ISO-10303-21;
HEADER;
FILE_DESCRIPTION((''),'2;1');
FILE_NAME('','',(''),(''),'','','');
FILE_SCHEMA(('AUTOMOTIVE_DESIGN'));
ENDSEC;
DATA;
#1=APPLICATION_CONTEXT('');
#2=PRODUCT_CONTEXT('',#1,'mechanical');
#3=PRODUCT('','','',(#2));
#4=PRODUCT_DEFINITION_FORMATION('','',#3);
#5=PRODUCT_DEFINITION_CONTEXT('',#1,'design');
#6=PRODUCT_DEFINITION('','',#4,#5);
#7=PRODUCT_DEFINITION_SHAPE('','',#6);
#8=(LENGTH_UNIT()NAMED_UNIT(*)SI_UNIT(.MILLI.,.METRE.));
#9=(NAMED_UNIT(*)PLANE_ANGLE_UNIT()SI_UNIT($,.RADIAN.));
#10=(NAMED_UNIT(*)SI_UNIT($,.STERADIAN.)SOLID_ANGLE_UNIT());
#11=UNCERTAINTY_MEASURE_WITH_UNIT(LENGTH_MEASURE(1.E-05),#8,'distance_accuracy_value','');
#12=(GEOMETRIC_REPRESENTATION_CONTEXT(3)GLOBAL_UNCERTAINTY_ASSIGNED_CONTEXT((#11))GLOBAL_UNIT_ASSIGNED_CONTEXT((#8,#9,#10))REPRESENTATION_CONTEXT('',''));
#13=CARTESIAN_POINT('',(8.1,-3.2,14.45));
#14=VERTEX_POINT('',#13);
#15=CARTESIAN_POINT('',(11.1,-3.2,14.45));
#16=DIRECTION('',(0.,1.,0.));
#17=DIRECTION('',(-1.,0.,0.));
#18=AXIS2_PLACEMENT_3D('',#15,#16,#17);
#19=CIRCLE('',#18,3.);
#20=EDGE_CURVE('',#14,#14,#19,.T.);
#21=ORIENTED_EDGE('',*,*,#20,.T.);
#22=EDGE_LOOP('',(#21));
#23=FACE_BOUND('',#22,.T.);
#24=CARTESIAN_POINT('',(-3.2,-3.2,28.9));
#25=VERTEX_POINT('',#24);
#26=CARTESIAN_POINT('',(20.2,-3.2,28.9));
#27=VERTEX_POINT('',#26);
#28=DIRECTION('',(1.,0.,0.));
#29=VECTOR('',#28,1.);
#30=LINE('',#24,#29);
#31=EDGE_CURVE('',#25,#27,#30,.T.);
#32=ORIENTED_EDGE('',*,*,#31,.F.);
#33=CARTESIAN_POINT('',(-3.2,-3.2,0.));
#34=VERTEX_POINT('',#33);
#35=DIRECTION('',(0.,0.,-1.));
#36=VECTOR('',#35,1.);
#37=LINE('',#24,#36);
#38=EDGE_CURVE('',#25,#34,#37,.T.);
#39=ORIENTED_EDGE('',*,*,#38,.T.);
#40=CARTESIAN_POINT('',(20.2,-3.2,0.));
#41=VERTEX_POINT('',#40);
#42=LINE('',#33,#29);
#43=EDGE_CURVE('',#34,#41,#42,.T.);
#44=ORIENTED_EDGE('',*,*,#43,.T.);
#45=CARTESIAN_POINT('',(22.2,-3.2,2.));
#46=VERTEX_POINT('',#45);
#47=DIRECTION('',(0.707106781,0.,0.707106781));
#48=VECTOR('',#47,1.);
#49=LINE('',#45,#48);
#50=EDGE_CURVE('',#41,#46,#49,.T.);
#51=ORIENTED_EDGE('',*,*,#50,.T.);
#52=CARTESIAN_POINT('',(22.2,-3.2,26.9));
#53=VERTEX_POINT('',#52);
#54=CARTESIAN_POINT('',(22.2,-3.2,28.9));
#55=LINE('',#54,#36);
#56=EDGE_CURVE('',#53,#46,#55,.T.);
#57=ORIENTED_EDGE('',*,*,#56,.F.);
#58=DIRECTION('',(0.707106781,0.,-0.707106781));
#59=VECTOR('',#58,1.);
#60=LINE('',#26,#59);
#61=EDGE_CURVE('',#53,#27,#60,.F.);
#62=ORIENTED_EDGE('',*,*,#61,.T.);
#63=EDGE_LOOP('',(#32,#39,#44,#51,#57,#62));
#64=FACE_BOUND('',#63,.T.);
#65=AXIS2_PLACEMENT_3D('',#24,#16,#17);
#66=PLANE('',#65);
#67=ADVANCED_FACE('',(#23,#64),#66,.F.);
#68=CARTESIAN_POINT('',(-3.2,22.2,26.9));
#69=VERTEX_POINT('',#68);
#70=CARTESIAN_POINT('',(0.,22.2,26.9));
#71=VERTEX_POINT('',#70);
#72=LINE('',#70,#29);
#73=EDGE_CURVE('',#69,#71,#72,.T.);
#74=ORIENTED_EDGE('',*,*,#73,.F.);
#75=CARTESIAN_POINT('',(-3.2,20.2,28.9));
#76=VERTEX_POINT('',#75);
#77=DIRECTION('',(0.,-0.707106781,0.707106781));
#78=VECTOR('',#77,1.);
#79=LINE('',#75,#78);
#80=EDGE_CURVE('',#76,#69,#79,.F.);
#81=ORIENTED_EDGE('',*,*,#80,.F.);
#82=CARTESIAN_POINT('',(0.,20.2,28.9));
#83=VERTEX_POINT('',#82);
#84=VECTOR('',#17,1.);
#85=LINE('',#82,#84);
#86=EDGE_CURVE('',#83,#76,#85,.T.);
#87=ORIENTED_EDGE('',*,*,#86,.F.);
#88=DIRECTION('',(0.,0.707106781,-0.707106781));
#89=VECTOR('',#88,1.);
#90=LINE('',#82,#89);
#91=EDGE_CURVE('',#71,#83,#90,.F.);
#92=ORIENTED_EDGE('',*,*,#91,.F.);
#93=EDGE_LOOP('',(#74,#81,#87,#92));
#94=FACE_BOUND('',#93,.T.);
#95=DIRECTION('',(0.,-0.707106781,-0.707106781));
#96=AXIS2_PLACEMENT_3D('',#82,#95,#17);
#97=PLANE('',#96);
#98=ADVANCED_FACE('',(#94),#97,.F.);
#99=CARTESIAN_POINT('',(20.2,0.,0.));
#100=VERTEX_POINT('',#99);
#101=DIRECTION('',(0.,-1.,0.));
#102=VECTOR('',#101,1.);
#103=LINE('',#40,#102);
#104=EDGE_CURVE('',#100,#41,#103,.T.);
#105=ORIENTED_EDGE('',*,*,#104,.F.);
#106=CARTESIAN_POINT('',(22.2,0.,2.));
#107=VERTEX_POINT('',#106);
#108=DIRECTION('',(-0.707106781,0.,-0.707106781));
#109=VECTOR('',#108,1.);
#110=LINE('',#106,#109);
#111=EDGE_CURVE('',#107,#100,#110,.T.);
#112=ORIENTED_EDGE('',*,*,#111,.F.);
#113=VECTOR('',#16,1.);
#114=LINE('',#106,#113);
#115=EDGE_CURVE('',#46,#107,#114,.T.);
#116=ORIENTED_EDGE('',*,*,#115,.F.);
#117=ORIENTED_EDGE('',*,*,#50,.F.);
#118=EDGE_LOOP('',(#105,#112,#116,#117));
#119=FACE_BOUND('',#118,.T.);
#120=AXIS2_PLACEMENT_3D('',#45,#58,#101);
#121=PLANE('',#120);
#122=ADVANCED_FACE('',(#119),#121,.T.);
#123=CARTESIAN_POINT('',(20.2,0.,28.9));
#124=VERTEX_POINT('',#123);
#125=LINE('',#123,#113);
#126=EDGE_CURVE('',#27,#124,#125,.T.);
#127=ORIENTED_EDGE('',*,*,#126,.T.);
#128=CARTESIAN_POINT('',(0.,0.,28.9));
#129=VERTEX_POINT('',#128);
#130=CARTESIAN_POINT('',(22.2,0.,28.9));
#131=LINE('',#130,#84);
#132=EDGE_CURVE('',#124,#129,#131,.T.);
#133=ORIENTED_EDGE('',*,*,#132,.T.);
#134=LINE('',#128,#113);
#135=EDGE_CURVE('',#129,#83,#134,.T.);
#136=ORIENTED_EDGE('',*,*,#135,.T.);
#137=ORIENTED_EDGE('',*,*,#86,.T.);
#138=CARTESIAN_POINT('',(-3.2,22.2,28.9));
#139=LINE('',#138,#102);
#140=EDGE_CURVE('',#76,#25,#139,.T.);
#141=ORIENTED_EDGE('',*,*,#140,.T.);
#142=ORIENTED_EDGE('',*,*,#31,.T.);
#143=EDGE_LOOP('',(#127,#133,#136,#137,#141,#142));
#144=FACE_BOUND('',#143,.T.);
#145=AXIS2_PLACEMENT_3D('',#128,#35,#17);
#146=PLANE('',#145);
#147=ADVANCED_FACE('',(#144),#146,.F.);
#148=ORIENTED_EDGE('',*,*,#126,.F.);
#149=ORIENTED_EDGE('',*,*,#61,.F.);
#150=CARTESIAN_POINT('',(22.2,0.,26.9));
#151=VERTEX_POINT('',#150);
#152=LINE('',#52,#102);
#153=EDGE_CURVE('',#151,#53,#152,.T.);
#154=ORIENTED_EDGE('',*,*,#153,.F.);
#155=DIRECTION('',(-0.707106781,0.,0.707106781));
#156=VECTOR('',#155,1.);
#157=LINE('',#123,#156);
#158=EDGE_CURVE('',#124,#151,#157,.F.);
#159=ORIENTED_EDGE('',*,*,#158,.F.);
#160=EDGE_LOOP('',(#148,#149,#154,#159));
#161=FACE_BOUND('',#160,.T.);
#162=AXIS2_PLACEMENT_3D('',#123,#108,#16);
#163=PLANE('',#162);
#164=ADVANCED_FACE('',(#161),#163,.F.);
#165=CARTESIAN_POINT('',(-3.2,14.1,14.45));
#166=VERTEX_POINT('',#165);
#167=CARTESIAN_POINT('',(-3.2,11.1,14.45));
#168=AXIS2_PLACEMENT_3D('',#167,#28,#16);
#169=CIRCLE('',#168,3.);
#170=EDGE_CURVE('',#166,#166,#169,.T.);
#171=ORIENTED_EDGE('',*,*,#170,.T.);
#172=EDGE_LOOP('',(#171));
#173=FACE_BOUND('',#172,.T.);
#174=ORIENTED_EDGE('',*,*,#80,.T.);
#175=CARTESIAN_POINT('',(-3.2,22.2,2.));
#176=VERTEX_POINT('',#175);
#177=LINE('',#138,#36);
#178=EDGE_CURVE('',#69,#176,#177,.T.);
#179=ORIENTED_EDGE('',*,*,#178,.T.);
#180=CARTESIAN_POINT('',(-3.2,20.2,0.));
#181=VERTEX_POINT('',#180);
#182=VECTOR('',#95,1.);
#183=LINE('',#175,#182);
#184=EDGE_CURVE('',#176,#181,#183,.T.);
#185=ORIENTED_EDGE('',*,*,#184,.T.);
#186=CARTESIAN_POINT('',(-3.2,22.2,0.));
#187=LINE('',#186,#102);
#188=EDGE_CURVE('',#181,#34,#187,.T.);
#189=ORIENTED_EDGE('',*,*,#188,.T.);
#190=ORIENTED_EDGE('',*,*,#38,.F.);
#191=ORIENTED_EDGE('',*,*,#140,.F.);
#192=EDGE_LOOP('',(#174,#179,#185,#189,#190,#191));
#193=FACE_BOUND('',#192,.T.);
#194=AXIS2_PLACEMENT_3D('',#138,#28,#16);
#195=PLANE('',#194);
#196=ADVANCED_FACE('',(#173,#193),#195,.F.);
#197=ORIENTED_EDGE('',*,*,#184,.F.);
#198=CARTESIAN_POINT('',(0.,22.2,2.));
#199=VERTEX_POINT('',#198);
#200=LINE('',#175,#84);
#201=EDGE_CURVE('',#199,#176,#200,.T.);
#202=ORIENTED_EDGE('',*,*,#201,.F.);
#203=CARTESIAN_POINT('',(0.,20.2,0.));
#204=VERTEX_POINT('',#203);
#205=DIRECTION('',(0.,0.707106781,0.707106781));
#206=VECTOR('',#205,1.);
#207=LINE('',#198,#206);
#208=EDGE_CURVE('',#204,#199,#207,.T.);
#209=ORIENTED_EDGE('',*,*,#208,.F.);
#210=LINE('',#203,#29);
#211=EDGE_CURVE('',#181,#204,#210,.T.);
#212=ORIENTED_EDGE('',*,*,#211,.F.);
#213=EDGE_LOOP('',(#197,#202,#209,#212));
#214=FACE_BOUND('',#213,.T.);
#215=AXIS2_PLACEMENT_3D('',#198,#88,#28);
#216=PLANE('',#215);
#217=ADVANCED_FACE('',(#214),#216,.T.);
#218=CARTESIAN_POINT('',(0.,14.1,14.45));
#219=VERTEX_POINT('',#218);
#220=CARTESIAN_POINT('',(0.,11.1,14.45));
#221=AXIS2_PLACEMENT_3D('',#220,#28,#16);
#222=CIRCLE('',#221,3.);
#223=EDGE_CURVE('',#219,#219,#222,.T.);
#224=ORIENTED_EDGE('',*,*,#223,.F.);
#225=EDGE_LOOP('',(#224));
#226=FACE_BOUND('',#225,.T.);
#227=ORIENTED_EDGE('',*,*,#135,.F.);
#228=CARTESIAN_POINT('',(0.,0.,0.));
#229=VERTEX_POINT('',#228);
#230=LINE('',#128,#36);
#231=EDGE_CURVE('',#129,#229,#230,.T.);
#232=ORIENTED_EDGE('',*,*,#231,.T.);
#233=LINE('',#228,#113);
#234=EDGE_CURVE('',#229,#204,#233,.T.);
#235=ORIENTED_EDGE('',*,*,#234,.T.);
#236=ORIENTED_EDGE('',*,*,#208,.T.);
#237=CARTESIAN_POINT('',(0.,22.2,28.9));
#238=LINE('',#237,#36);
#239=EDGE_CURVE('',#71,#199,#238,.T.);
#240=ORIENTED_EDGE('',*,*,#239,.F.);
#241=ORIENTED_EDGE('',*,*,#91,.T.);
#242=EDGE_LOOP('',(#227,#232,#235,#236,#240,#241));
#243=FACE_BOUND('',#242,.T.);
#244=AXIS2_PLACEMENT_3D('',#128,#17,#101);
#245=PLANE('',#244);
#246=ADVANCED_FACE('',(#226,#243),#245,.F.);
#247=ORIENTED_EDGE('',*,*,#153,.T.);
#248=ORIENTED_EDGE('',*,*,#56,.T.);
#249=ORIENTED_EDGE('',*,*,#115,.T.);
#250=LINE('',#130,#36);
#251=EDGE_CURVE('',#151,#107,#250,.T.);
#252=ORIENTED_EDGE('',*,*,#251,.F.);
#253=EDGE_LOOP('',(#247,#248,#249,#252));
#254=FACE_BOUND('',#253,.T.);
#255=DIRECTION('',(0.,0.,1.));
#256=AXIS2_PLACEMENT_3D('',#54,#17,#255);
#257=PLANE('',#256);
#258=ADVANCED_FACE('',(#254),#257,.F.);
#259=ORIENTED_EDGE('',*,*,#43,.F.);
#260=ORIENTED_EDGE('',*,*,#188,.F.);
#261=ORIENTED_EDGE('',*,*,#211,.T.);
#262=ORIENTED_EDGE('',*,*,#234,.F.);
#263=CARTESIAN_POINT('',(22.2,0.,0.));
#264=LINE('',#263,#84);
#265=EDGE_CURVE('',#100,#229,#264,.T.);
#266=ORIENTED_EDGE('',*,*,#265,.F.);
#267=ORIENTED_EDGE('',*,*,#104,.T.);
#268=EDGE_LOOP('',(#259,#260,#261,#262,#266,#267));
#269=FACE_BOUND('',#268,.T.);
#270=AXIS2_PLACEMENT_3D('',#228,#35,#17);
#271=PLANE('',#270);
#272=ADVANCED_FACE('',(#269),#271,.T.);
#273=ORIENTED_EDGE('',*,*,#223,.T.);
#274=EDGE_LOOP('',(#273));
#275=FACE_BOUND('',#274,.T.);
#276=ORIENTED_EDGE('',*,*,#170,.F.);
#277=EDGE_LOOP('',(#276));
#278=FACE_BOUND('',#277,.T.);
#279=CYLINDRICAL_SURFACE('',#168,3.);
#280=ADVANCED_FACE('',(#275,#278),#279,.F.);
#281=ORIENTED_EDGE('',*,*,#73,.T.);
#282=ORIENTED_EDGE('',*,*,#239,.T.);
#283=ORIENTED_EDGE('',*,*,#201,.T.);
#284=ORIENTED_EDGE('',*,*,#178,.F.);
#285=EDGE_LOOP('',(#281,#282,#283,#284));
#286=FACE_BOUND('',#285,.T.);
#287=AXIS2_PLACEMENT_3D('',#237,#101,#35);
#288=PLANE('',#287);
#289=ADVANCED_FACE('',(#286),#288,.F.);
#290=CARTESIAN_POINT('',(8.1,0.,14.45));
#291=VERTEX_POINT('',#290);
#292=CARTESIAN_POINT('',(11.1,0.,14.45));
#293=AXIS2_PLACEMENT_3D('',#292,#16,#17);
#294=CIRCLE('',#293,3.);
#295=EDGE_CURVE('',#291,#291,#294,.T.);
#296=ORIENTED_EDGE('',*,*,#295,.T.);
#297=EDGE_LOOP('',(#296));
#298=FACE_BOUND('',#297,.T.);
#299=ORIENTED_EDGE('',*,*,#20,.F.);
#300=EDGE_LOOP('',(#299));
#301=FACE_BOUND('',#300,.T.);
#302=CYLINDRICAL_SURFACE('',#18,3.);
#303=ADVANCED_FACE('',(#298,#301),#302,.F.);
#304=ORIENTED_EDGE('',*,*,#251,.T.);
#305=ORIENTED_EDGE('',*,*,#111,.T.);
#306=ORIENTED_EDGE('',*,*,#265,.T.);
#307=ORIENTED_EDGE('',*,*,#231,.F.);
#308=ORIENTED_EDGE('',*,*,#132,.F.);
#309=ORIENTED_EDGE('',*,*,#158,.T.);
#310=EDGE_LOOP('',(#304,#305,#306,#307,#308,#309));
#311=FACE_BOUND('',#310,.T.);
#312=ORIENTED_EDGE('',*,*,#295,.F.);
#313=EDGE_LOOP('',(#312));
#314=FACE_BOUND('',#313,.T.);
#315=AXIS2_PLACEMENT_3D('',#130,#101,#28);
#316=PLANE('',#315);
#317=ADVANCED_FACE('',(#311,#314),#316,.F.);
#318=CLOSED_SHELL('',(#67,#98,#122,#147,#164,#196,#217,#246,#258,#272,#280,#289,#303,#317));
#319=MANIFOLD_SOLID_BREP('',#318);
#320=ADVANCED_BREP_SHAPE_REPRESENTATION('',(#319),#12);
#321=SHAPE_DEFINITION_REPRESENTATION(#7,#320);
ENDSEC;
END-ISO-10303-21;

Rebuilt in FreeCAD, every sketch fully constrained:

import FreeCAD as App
import Part
import Sketcher
Q = App.Units.Quantity


def edges_at(feature, points):
    """Names of the edges that pass closest to the given points."""
    edges = feature.Shape.Edges
    near = lambda p: min(range(len(edges)), key=lambda i: edges[i].distToShape(Part.Vertex(*p))[0])
    return sorted({f"Edge{near(p) + 1}" for p in points})


def add_polygon(sketch, points):
    """Adds a closed chain of lines whose ends are joined by coincident constraints."""
    first, n = sketch.GeometryCount, len(points)
    for a, b in zip(points, points[1:] + points[:1]):
        sketch.addGeometry(Part.LineSegment(App.Vector(*a, 0), App.Vector(*b, 0)), False)
    for i in range(n):
        sketch.addConstraint(Sketcher.Constraint("Coincident", first + i, 2, first + (i + 1) % n, 1))

doc = App.newDocument("Part")
body = doc.addObject("PartDesign::Body", "Body")

# Sketch on XY plane
sketch1 = body.newObject("Sketcher::SketchObject", "Sketch")
sketch1.AttachmentSupport = (doc.getObject("XY_Plane"), [""])
sketch1.MapMode = "FlatFace"
add_polygon(sketch1, [(0, 0), (0, 22.2), (-3.2, 22.2), (-3.2, -3.2), (22.2, -3.2), (22.2, 0)])  # lines 0-5
sketch1.addConstraint([
    Sketcher.Constraint("Vertical", 0),
    Sketcher.Constraint("Horizontal", 1),
    Sketcher.Constraint("Vertical", 2),
    Sketcher.Constraint("Horizontal", 3),
    Sketcher.Constraint("Vertical", 4),
    Sketcher.Constraint("Horizontal", 5),
    Sketcher.Constraint("Coincident", 5, 2, -1, 1),
    Sketcher.Constraint("Equal", 5, 0),
    Sketcher.Constraint("Equal", 3, 2),
    Sketcher.Constraint("DistanceX", 1, 2, 1, 1, Q("3.2 mm")),
    Sketcher.Constraint("DistanceX", 3, 1, 3, 2, Q("25.4 mm")),
])
pad1 = body.newObject("PartDesign::Pad", "Pad")
pad1.Profile = sketch1
pad1.Length = 28.9
doc.recompute()

chamfer = body.newObject("PartDesign::Chamfer", "Chamfer")
chamfer.Base = (pad1, edges_at(pad1, [
    (-1.6, 22.2, 28.9),
    (22.2, -1.6, 28.9),
    (22.2, -1.6, 0),
    (-1.6, 22.2, 0),
]))
chamfer.Size = 2

# Sketch on XZ plane
sketch2 = body.newObject("Sketcher::SketchObject", "Sketch001")
sketch2.AttachmentSupport = (doc.getObject("XZ_Plane"), [""])
sketch2.MapMode = "FlatFace"
sketch2.addGeometry(Part.Circle(App.Vector(11.1, 14.4, 0), App.Vector(0, 0, 1), 3), False)
sketch2.addConstraint([
    Sketcher.Constraint("Diameter", 0, Q("6 mm")),
    Sketcher.Constraint("DistanceX", -1, 1, 0, 3, Q("11.1 mm")),
    Sketcher.Constraint("DistanceY", -1, 1, 0, 3, Q("14.45 mm")),
])
pocket1 = body.newObject("PartDesign::Pocket", "Pocket")
pocket1.Profile = sketch2
pocket1.Type = "ThroughAll"
pocket1.Reversed = True

# Sketch on YZ plane
sketch3 = body.newObject("Sketcher::SketchObject", "Sketch002")
sketch3.AttachmentSupport = (doc.getObject("YZ_Plane"), [""])
sketch3.MapMode = "FlatFace"
sketch3.addGeometry(Part.Circle(App.Vector(11.1, 14.4, 0), App.Vector(0, 0, 1), 3), False)
sketch3.addConstraint([
    Sketcher.Constraint("Diameter", 0, Q("6 mm")),
    Sketcher.Constraint("DistanceX", -1, 1, 0, 3, Q("11.1 mm")),
    Sketcher.Constraint("DistanceY", -1, 1, 0, 3, Q("14.45 mm")),
])
pocket2 = body.newObject("PartDesign::Pocket", "Pocket001")
pocket2.Profile = sketch3
pocket2.Type = "ThroughAll"

doc.recompute()
